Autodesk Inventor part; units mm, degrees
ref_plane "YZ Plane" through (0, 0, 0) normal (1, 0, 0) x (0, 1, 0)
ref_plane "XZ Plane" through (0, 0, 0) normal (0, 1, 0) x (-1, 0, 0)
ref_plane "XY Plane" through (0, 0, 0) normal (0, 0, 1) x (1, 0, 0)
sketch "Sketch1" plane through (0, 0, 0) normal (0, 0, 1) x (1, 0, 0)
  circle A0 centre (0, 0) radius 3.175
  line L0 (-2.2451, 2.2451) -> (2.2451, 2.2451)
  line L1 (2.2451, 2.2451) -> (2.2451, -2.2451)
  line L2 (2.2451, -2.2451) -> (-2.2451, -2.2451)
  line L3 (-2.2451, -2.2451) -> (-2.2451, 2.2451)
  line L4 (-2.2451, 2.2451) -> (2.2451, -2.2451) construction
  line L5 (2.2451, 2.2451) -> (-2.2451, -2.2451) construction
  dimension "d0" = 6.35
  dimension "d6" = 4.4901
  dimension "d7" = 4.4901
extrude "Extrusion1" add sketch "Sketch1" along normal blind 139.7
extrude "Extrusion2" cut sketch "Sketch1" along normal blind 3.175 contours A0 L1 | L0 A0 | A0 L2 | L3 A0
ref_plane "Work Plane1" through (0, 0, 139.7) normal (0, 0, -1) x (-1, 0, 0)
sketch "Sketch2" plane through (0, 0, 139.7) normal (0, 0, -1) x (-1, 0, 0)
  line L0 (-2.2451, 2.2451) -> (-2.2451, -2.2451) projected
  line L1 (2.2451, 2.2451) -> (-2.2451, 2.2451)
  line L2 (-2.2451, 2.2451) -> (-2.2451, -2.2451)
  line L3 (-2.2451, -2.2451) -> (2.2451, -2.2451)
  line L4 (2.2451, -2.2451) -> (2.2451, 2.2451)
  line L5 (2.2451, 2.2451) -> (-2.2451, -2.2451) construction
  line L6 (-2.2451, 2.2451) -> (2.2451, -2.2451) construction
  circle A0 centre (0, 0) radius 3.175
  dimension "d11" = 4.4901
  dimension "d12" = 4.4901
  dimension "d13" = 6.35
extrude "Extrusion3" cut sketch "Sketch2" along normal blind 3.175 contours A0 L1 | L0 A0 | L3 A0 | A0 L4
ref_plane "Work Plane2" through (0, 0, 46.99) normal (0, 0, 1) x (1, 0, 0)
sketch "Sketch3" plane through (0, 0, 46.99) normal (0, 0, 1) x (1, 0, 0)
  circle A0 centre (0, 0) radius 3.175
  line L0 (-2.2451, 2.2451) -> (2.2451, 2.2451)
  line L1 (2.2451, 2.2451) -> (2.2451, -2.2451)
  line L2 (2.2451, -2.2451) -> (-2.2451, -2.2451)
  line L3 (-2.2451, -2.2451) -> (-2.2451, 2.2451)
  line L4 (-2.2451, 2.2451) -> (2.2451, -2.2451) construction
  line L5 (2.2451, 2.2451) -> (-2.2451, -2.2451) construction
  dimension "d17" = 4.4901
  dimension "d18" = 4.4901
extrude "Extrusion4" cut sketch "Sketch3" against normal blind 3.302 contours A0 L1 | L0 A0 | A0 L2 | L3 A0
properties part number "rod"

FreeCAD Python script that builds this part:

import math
import FreeCAD as App
import Part
import Sketcher

V = App.Vector
Q = App.Units.Quantity

doc = App.newDocument("Part")
body = doc.addObject("PartDesign::Body", "Body")

sketch1 = body.newObject("Sketcher::SketchObject", "Sketch")
sketch1.AttachmentSupport = (doc.getObject("XY_Plane"), [""])
sketch1.MapMode = "FlatFace"
sketch1.addGeometry(Part.Circle(V(0, 0, 0), V(0, 0, 1), 3.2), False)
sketch1.addConstraint(Sketcher.Constraint("Coincident", 0, 3, -1, 1))
sketch1.addConstraint(Sketcher.Constraint("Diameter", 0, Q("0.25 in")))
pad1 = body.newObject("PartDesign::Pad", "Pad")
pad1.Profile = sketch1
pad1.Length = Q("5.5 in")

sketch2 = body.newObject("Sketcher::SketchObject", "Sketch001")
sketch2.AttachmentSupport = (doc.getObject("XY_Plane"), [""])
sketch2.MapMode = "FlatFace"
sketch2.addGeometry(Part.ArcOfCircle(Part.Circle(V(0, 0, 0), V(0, 0, 1), 3.2), math.radians(-45), math.radians(45)), False)
sketch2.addGeometry(Part.LineSegment(V(2.2, -2.2, 0), V(2.2, 2.2, 0)), False)
sketch2.addGeometry(Part.LineSegment(V(-2.2, 2.2, 0), V(2.2, 2.2, 0)), False)
sketch2.addGeometry(Part.ArcOfCircle(Part.Circle(V(0, 0, 0), V(0, 0, 1), 3.2), math.radians(45), math.radians(135)), False)
sketch2.addGeometry(Part.ArcOfCircle(Part.Circle(V(0, 0, 0), V(0, 0, 1), 3.2), math.radians(-135), math.radians(-45)), False)
sketch2.addGeometry(Part.LineSegment(V(-2.2, -2.2, 0), V(2.2, -2.2, 0)), False)
sketch2.addGeometry(Part.LineSegment(V(-2.2, -2.2, 0), V(-2.2, 2.2, 0)), False)
sketch2.addGeometry(Part.ArcOfCircle(Part.Circle(V(0, 0, 0), V(0, 0, 1), 3.2), math.radians(135), math.radians(225)), False)
sketch2.addConstraint(Sketcher.Constraint("Coincident", 0, 1, 1, 1))
sketch2.addConstraint(Sketcher.Constraint("Coincident", 1, 2, 0, 2))
sketch2.addConstraint(Sketcher.Constraint("Coincident", 2, 1, 3, 2))
sketch2.addConstraint(Sketcher.Constraint("Coincident", 3, 1, 2, 2))
sketch2.addConstraint(Sketcher.Constraint("Coincident", 4, 1, 5, 1))
sketch2.addConstraint(Sketcher.Constraint("Coincident", 5, 2, 4, 2))
sketch2.addConstraint(Sketcher.Constraint("Coincident", 6, 1, 7, 2))
sketch2.addConstraint(Sketcher.Constraint("Coincident", 7, 1, 6, 2))
sketch2.addConstraint(Sketcher.Constraint("Vertical", 1))
sketch2.addConstraint(Sketcher.Constraint("Horizontal", 2))
sketch2.addConstraint(Sketcher.Constraint("Horizontal", 5))
sketch2.addConstraint(Sketcher.Constraint("Vertical", 6))
sketch2.addConstraint(Sketcher.Constraint("Coincident", 0, 3, -1, 1))
sketch2.addConstraint(Sketcher.Constraint("Coincident", 3, 3, -1, 1))
sketch2.addConstraint(Sketcher.Constraint("Coincident", 4, 3, -1, 1))
sketch2.addConstraint(Sketcher.Constraint("Coincident", 7, 3, -1, 1))
sketch2.addConstraint(Sketcher.Constraint("Coincident", 3, 1, 1, 2))
sketch2.addConstraint(Sketcher.Constraint("Coincident", 5, 2, 0, 1))
sketch2.addConstraint(Sketcher.Constraint("Coincident", 6, 1, 4, 1))
sketch2.addConstraint(Sketcher.Constraint("Equal", 5, 1))
sketch2.addConstraint(Sketcher.Constraint("Radius", 0, Q("0.125 in")))
pocket1 = body.newObject("PartDesign::Pocket", "Pocket")
pocket1.Profile = sketch2
pocket1.Length = Q("0.125 in")
pocket1.Reversed = True

sketch3 = body.newObject("Sketcher::SketchObject", "Sketch002")
sketch3.AttachmentSupport = (doc.getObject("XY_Plane"), [""])
sketch3.MapMode = "FlatFace"
sketch3.AttachmentOffset = App.Placement(V(0, 0, 5.5 * 25.4), App.Rotation())
sketch3.addGeometry(Part.ArcOfCircle(Part.Circle(V(0, 0, 0), V(0, 0, 1), 3.2), math.radians(45), math.radians(135)), False)
sketch3.addGeometry(Part.LineSegment(V(-2.2, 2.2, 0), V(2.2, 2.2, 0)), False)
sketch3.addGeometry(Part.LineSegment(V(2.2, -2.2, 0), V(2.2, 2.2, 0)), False)
sketch3.addGeometry(Part.ArcOfCircle(Part.Circle(V(0, 0, 0), V(0, 0, 1), 3.2), math.radians(-45), math.radians(45)), False)
sketch3.addGeometry(Part.LineSegment(V(-2.2, -2.2, 0), V(2.2, -2.2, 0)), False)
sketch3.addGeometry(Part.ArcOfCircle(Part.Circle(V(0, 0, 0), V(0, 0, 1), 3.2), math.radians(-135), math.radians(-45)), False)
sketch3.addGeometry(Part.ArcOfCircle(Part.Circle(V(0, 0, 0), V(0, 0, 1), 3.2), math.radians(135), math.radians(225)), False)
sketch3.addGeometry(Part.LineSegment(V(-2.2, -2.2, 0), V(-2.2, 2.2, 0)), False)
sketch3.addConstraint(Sketcher.Constraint("Coincident", 0, 1, 1, 2))
sketch3.addConstraint(Sketcher.Constraint("Coincident", 1, 1, 0, 2))
sketch3.addConstraint(Sketcher.Constraint("Coincident", 2, 1, 3, 1))
sketch3.addConstraint(Sketcher.Constraint("Coincident", 3, 2, 2, 2))
sketch3.addConstraint(Sketcher.Constraint("Coincident", 4, 1, 5, 1))
sketch3.addConstraint(Sketcher.Constraint("Coincident", 5, 2, 4, 2))
sketch3.addConstraint(Sketcher.Constraint("Coincident", 6, 1, 7, 2))
sketch3.addConstraint(Sketcher.Constraint("Coincident", 7, 1, 6, 2))
sketch3.addConstraint(Sketcher.Constraint("Horizontal", 1))
sketch3.addConstraint(Sketcher.Constraint("Vertical", 2))
sketch3.addConstraint(Sketcher.Constraint("Horizontal", 4))
sketch3.addConstraint(Sketcher.Constraint("Vertical", 7))
sketch3.addConstraint(Sketcher.Constraint("Coincident", 0, 3, -1, 1))
sketch3.addConstraint(Sketcher.Constraint("Coincident", 3, 3, -1, 1))
sketch3.addConstraint(Sketcher.Constraint("Coincident", 5, 3, -1, 1))
sketch3.addConstraint(Sketcher.Constraint("Coincident", 6, 3, -1, 1))
sketch3.addConstraint(Sketcher.Constraint("Coincident", 3, 2, 0, 1))
sketch3.addConstraint(Sketcher.Constraint("Coincident", 5, 2, 2, 1))
sketch3.addConstraint(Sketcher.Constraint("Coincident", 6, 1, 1, 1))
sketch3.addConstraint(Sketcher.Constraint("Equal", 4, 2))
sketch3.addConstraint(Sketcher.Constraint("Radius", 0, Q("0.125 in")))
pocket2 = body.newObject("PartDesign::Pocket", "Pocket001")
pocket2.Profile = sketch3
pocket2.Length = Q("0.125 in")

sketch4 = body.newObject("Sketcher::SketchObject", "Sketch003")
sketch4.AttachmentSupport = (doc.getObject("XY_Plane"), [""])
sketch4.MapMode = "FlatFace"
sketch4.AttachmentOffset = App.Placement(V(0, 0, 1.85 * 25.4), App.Rotation())
sketch4.addGeometry(Part.ArcOfCircle(Part.Circle(V(0, 0, 0), V(0, 0, 1), 3.2), math.radians(-45), math.radians(45)), False)
sketch4.addGeometry(Part.LineSegment(V(2.2, -2.2, 0), V(2.2, 2.2, 0)), False)
sketch4.addGeometry(Part.LineSegment(V(-2.2, 2.2, 0), V(2.2, 2.2, 0)), False)
sketch4.addGeometry(Part.ArcOfCircle(Part.Circle(V(0, 0, 0), V(0, 0, 1), 3.2), math.radians(45), math.radians(135)), False)
sketch4.addGeometry(Part.ArcOfCircle(Part.Circle(V(0, 0, 0), V(0, 0, 1), 3.2), math.radians(-135), math.radians(-45)), False)
sketch4.addGeometry(Part.LineSegment(V(-2.2, -2.2, 0), V(2.2, -2.2, 0)), False)
sketch4.addGeometry(Part.LineSegment(V(-2.2, -2.2, 0), V(-2.2, 2.2, 0)), False)
sketch4.addGeometry(Part.ArcOfCircle(Part.Circle(V(0, 0, 0), V(0, 0, 1), 3.2), math.radians(135), math.radians(225)), False)
sketch4.addConstraint(Sketcher.Constraint("Coincident", 0, 1, 1, 1))
sketch4.addConstraint(Sketcher.Constraint("Coincident", 1, 2, 0, 2))
sketch4.addConstraint(Sketcher.Constraint("Coincident", 2, 1, 3, 2))
sketch4.addConstraint(Sketcher.Constraint("Coincident", 3, 1, 2, 2))
sketch4.addConstraint(Sketcher.Constraint("Coincident", 4, 1, 5, 1))
sketch4.addConstraint(Sketcher.Constraint("Coincident", 5, 2, 4, 2))
sketch4.addConstraint(Sketcher.Constraint("Coincident", 6, 1, 7, 2))
sketch4.addConstraint(Sketcher.Constraint("Coincident", 7, 1, 6, 2))
sketch4.addConstraint(Sketcher.Constraint("Vertical", 1))
sketch4.addConstraint(Sketcher.Constraint("Horizontal", 2))
sketch4.addConstraint(Sketcher.Constraint("Horizontal", 5))
sketch4.addConstraint(Sketcher.Constraint("Vertical", 6))
sketch4.addConstraint(Sketcher.Constraint("Coincident", 0, 3, -1, 1))
sketch4.addConstraint(Sketcher.Constraint("Coincident", 3, 3, -1, 1))
sketch4.addConstraint(Sketcher.Constraint("Coincident", 4, 3, -1, 1))
sketch4.addConstraint(Sketcher.Constraint("Coincident", 7, 3, -1, 1))
sketch4.addConstraint(Sketcher.Constraint("Coincident", 3, 1, 1, 2))
sketch4.addConstraint(Sketcher.Constraint("Coincident", 5, 2, 0, 1))
sketch4.addConstraint(Sketcher.Constraint("Coincident", 6, 1, 4, 1))
sketch4.addConstraint(Sketcher.Constraint("Equal", 5, 1))
sketch4.addConstraint(Sketcher.Constraint("Radius", 0, Q("0.125 in")))
pocket3 = body.newObject("PartDesign::Pocket", "Pocket002")
pocket3.Profile = sketch4
pocket3.Length = Q("0.13 in")

doc.recompute()
